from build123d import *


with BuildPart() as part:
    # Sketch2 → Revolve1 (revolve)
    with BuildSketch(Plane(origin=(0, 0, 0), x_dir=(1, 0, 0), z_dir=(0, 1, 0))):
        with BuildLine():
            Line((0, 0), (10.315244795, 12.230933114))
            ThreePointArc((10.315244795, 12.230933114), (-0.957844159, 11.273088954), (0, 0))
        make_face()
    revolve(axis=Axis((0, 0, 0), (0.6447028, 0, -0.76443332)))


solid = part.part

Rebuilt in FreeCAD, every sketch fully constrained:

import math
import FreeCAD as App
import Part
import Sketcher

V = App.Vector

doc = App.newDocument("Part")
body = doc.addObject("PartDesign::Body", "Body")

# Sketch on XZ plane
sketch1 = doc.addObject("Sketcher::SketchObject", "Sketch")
body.addObject(sketch1)
sketch1.AttachmentSupport = (doc.XZ_Plane, [""])
sketch1.MapMode = "FlatFace"
sketch1.addGeometry([
    Part.LineSegment(V(0, 0, 0), V(10, -12, 0)),
    Part.ArcOfCircle(Part.Circle(V(5, -6, 0), V(0, 0, 1), 8), math.radians(130), math.radians(310)),
], False)
sketch1.addGeometry(Part.LineSegment(V(0, 0, 0), V(10, -12, 0)), True)  # axis
sketch1.addConstraint([
    Sketcher.Constraint("Coincident", 0, 1, 1, 1),
    Sketcher.Constraint("Coincident", 1, 2, 0, 2),
    Sketcher.Constraint("Coincident", 0, 1, -1, 1),
    Sketcher.Constraint("Coincident", 2, 1, -1, 1),
    Sketcher.Constraint("Coincident", 2, 2, 1, 2),
    Sketcher.Constraint("Radius", 1, 8.0),
    Sketcher.Constraint("DistanceX", -1, 1, 1, 3, 5.157622),
    Sketcher.Constraint("DistanceX", -1, 1, 1, 2, 10.315245),
])
revolution = doc.addObject("PartDesign::Revolution", "Revolution")
body.addObject(revolution)
revolution.Profile = sketch1
revolution.ReferenceAxis = (sketch1, ["Axis0"])
revolution.Angle = 360

doc.recompute()
